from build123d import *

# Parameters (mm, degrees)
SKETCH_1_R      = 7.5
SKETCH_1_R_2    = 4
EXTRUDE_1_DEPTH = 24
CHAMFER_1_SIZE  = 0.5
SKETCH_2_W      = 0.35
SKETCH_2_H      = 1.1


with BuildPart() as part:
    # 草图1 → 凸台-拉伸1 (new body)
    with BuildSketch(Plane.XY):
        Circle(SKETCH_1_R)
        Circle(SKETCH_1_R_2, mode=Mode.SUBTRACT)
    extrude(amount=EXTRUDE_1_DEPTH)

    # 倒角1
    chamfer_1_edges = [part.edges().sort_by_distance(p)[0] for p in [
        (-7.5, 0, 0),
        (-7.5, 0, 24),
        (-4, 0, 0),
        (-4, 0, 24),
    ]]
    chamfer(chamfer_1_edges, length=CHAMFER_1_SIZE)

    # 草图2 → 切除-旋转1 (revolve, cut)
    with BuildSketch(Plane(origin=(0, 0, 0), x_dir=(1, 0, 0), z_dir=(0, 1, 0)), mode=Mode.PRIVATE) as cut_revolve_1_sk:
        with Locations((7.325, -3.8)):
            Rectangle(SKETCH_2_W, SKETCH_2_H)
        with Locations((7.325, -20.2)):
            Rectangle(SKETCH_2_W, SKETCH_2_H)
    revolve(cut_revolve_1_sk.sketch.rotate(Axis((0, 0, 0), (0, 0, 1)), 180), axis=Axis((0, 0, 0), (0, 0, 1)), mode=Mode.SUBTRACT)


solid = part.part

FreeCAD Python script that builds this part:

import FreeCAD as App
import Part
import Sketcher
Q = App.Units.Quantity


def edges_at(feature, points):
    """Names of the edges that pass closest to the given points."""
    edges = feature.Shape.Edges
    near = lambda p: min(range(len(edges)), key=lambda i: edges[i].distToShape(Part.Vertex(*p))[0])
    return sorted({f"Edge{near(p) + 1}" for p in points})

doc = App.newDocument("Part")
body = doc.addObject("PartDesign::Body", "Body")

sketch1 = doc.addObject("Sketcher::SketchObject", "Sketch")
body.addObject(sketch1)
sketch1.AttachmentSupport = (doc.XY_Plane, [""])
sketch1.MapMode = "FlatFace"
sketch1.addGeometry(Part.Circle(App.Vector(0, 0, 0), App.Vector(0, 0, 1), 7.5), False)
sketch1.addGeometry(Part.Circle(App.Vector(0, 0, 0), App.Vector(0, 0, 1), 4), False)
sketch1.addConstraint(Sketcher.Constraint("Coincident", 0, 3, -1, 1))
sketch1.addConstraint(Sketcher.Constraint("Coincident", 1, 3, -1, 1))
sketch1.addConstraint(Sketcher.Constraint("Diameter", 0, Q("15 mm")))
sketch1.addConstraint(Sketcher.Constraint("Diameter", 1, Q("8 mm")))
pad1 = doc.addObject("PartDesign::Pad", "Pad")
body.addObject(pad1)
pad1.Profile = sketch1
pad1.Length = 24
doc.recompute()

chamfer = doc.addObject("PartDesign::Chamfer", "Chamfer")
body.addObject(chamfer)
chamfer.Base = (pad1, edges_at(pad1, [
    (-7.5, 0, 0),
    (-7.5, 0, 24),
    (-4, 0, 0),
    (-4, 0, 24),
]))
chamfer.Size = 0.5

sketch2 = doc.addObject("Sketcher::SketchObject", "Sketch001")
body.addObject(sketch2)
sketch2.AttachmentSupport = (doc.XZ_Plane, [""])
sketch2.MapMode = "FlatFace"
sketch2.addGeometry(Part.LineSegment(App.Vector(7.15, 3.25, 0), App.Vector(7.15, 4.35, 0)), False)
sketch2.addGeometry(Part.LineSegment(App.Vector(7.15, 4.35, 0), App.Vector(7.5, 4.35, 0)), False)
sketch2.addGeometry(Part.LineSegment(App.Vector(7.5, 4.35, 0), App.Vector(7.5, 3.25, 0)), False)
sketch2.addGeometry(Part.LineSegment(App.Vector(7.5, 3.25, 0), App.Vector(7.15, 3.25, 0)), False)
sketch2.addGeometry(Part.LineSegment(App.Vector(7.15, 19.65, 0), App.Vector(7.15, 20.75, 0)), False)
sketch2.addGeometry(Part.LineSegment(App.Vector(7.15, 20.75, 0), App.Vector(7.5, 20.75, 0)), False)
sketch2.addGeometry(Part.LineSegment(App.Vector(7.5, 20.75, 0), App.Vector(7.5, 19.65, 0)), False)
sketch2.addGeometry(Part.LineSegment(App.Vector(7.5, 19.65, 0), App.Vector(7.15, 19.65, 0)), False)
sketch2.addConstraint(Sketcher.Constraint("Coincident", 0, 2, 1, 1))
sketch2.addConstraint(Sketcher.Constraint("Coincident", 1, 2, 2, 1))
sketch2.addConstraint(Sketcher.Constraint("Coincident", 2, 2, 3, 1))
sketch2.addConstraint(Sketcher.Constraint("Coincident", 3, 2, 0, 1))
sketch2.addConstraint(Sketcher.Constraint("Coincident", 4, 2, 5, 1))
sketch2.addConstraint(Sketcher.Constraint("Coincident", 5, 2, 6, 1))
sketch2.addConstraint(Sketcher.Constraint("Coincident", 6, 2, 7, 1))
sketch2.addConstraint(Sketcher.Constraint("Coincident", 7, 2, 4, 1))
sketch2.addConstraint(Sketcher.Constraint("Vertical", 0))
sketch2.addConstraint(Sketcher.Constraint("Horizontal", 1))
sketch2.addConstraint(Sketcher.Constraint("Vertical", 2))
sketch2.addConstraint(Sketcher.Constraint("Horizontal", 3))
sketch2.addConstraint(Sketcher.Constraint("Vertical", 4))
sketch2.addConstraint(Sketcher.Constraint("Horizontal", 5))
sketch2.addConstraint(Sketcher.Constraint("Vertical", 6))
sketch2.addConstraint(Sketcher.Constraint("Horizontal", 7))
sketch2.addConstraint(Sketcher.Constraint("Vertical", 3, 2, 4, 2))
sketch2.addConstraint(Sketcher.Constraint("Vertical", 2, 2, 5, 2))
sketch2.addConstraint(Sketcher.Constraint("Equal", 2, 4))
sketch2.addConstraint(Sketcher.Constraint("DistanceY", 0, 1, 0, 2, Q("1.1 mm")))
sketch2.addConstraint(Sketcher.Constraint("DistanceX", 1, 1, 1, 2, Q("0.35 mm")))
sketch2.addConstraint(Sketcher.Constraint("DistanceX", -1, 1, 1, 2, Q("7.5 mm")))
sketch2.addConstraint(Sketcher.Constraint("DistanceY", 0, 2, 4, 2, Q("16.4 mm")))
sketch2.addConstraint(Sketcher.Constraint("DistanceY", -1, 1, 0, 2, Q("4.35 mm")))
groove = doc.addObject("PartDesign::Groove", "Groove")
body.addObject(groove)
groove.Profile = sketch2
groove.ReferenceAxis = (sketch2, ["V_Axis"])
groove.Angle = 360

doc.recompute()
